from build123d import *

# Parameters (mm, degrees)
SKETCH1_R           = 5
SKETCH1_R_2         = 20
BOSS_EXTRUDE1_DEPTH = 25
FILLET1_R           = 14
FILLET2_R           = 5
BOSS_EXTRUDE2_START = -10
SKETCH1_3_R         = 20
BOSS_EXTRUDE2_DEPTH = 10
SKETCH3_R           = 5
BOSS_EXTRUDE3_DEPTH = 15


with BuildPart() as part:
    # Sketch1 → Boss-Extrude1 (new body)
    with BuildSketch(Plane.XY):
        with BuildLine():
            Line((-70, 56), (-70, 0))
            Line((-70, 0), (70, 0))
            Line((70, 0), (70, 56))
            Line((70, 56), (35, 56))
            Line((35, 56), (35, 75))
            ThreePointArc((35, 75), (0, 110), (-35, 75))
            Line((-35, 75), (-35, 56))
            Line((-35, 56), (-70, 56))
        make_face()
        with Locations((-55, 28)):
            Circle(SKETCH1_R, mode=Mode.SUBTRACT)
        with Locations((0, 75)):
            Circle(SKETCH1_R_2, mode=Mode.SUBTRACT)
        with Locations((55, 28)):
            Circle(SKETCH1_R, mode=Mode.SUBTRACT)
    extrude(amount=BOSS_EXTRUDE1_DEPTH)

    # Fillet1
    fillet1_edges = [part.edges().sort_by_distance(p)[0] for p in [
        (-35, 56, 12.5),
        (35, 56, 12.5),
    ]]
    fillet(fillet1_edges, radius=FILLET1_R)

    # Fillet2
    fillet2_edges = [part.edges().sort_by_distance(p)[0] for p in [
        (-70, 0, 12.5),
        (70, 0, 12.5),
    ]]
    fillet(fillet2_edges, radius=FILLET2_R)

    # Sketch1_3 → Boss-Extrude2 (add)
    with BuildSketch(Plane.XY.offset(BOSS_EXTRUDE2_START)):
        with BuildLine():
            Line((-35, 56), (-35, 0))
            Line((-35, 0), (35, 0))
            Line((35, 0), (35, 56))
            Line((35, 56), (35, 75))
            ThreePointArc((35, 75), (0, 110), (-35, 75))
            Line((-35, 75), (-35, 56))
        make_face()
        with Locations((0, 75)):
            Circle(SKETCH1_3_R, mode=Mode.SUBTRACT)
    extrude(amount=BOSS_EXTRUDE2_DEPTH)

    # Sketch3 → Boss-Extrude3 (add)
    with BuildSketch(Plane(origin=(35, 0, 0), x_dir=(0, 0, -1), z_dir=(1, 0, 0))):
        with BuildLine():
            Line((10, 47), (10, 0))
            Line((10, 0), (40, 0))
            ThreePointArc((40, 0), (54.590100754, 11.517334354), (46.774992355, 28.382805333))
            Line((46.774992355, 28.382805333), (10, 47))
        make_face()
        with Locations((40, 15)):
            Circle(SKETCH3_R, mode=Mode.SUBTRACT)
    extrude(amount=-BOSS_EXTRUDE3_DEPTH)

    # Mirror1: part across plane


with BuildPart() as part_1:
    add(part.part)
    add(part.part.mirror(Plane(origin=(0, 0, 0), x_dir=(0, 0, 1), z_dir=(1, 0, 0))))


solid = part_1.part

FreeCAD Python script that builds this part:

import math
import FreeCAD as App
import Part
import Sketcher
from FreeCAD import Vector
Q = App.Units.Quantity


def edges_at(feature, points):
    """Names of the edges that pass closest to the given points."""
    edges = feature.Shape.Edges
    near = lambda p: min(range(len(edges)), key=lambda i: edges[i].distToShape(Part.Vertex(*p))[0])
    return sorted({f"Edge{near(p) + 1}" for p in points})

doc = App.newDocument("Part")
body = doc.addObject("PartDesign::Body", "Body")

sketch1 = doc.addObject("Sketcher::SketchObject", "Sketch")
body.addObject(sketch1)
sketch1.AttachmentSupport = (doc.XY_Plane, [""])
sketch1.MapMode = "FlatFace"
sketch1.addGeometry([
    Part.LineSegment(Vector(-70, 56, 0), Vector(-70, 0, 0)),
    Part.LineSegment(Vector(-70, 0, 0), Vector(70, 0, 0)),
    Part.LineSegment(Vector(70, 0, 0), Vector(70, 56, 0)),
    Part.LineSegment(Vector(70, 56, 0), Vector(35, 56, 0)),
    Part.LineSegment(Vector(35, 56, 0), Vector(35, 75, 0)),
    Part.ArcOfCircle(Part.Circle(Vector(0, 75, 0), Vector(0, 0, 1), 35), math.radians(0), math.radians(180)),
    Part.LineSegment(Vector(-35, 75, 0), Vector(-35, 56, 0)),
    Part.LineSegment(Vector(-35, 56, 0), Vector(-70, 56, 0)),
    Part.Circle(Vector(-55, 28, 0), Vector(0, 0, 1), 5),
    Part.Circle(Vector(55, 28, 0), Vector(0, 0, 1), 5),
    Part.Circle(Vector(0, 75, 0), Vector(0, 0, 1), 20),
], False)
sketch1.addConstraint([
    Sketcher.Constraint("Coincident", 0, 2, 1, 1),
    Sketcher.Constraint("Coincident", 1, 2, 2, 1),
    Sketcher.Constraint("Coincident", 2, 2, 3, 1),
    Sketcher.Constraint("Coincident", 3, 2, 4, 1),
    Sketcher.Constraint("Tangent", 4, 2, 5, 1),
    Sketcher.Constraint("Tangent", 5, 2, 6, 1),
    Sketcher.Constraint("Coincident", 6, 2, 7, 1),
    Sketcher.Constraint("Coincident", 7, 2, 0, 1),
    Sketcher.Constraint("Vertical", 0),
    Sketcher.Constraint("Horizontal", 1),
    Sketcher.Constraint("Vertical", 2),
    Sketcher.Constraint("Horizontal", 3),
    Sketcher.Constraint("Vertical", 4),
    Sketcher.Constraint("Vertical", 6),
    Sketcher.Constraint("Horizontal", 7),
    Sketcher.Constraint("Coincident", 10, 3, 5, 3),
    Sketcher.Constraint("Equal", 8, 9),
    Sketcher.Constraint("Symmetric", 0, 2, 1, 2, -1, 1),
    Sketcher.Constraint("Symmetric", 8, 3, 9, 3, -2),
    Sketcher.Constraint("Symmetric", 3, 2, 6, 2, -2),
    Sketcher.Constraint("Diameter", 8, Q("10 mm")),
    Sketcher.Constraint("Diameter", 10, Q("40 mm")),
    Sketcher.Constraint("Radius", 5, Q("35 mm")),
    Sketcher.Constraint("DistanceX", 1, 1, 1, 2, Q("140 mm")),
    Sketcher.Constraint("DistanceY", 0, 2, 0, 1, Q("56 mm")),
    Sketcher.Constraint("DistanceY", 4, 1, 4, 2, Q("19 mm")),
    Sketcher.Constraint("DistanceX", 8, 3, -1, 1, Q("55 mm")),
    Sketcher.Constraint("DistanceY", -1, 1, 8, 3, Q("28 mm")),
])
pad1 = doc.addObject("PartDesign::Pad", "Pad")
body.addObject(pad1)
pad1.Profile = sketch1
pad1.Length = 25
doc.recompute()

fillet = doc.addObject("PartDesign::Fillet", "Fillet")
body.addObject(fillet)
fillet.Base = (pad1, edges_at(pad1, [(-35, 56, 12.5), (35, 56, 12.5)]))
fillet.Radius = 14
doc.recompute()

fillet2 = doc.addObject("PartDesign::Fillet", "Fillet001")
body.addObject(fillet2)
fillet2.Base = (fillet, edges_at(fillet, [(-70, 0, 12.5), (70, 0, 12.5)]))
fillet2.Radius = 5

sketch2 = doc.addObject("Sketcher::SketchObject", "Sketch001")
body.addObject(sketch2)
sketch2.AttachmentSupport = (doc.XY_Plane, [""])
sketch2.MapMode = "FlatFace"
sketch2.AttachmentOffset = App.Placement(Vector(0, 0, -10), App.Rotation())
sketch2.addGeometry([
    Part.LineSegment(Vector(-35, 0, 0), Vector(35, 0, 0)),
    Part.LineSegment(Vector(35, 0, 0), Vector(35, 75, 0)),
    Part.ArcOfCircle(Part.Circle(Vector(0, 75, 0), Vector(0, 0, 1), 35), math.radians(0), math.radians(180)),
    Part.LineSegment(Vector(-35, 75, 0), Vector(-35, 0, 0)),
    Part.Circle(Vector(0, 75, 0), Vector(0, 0, 1), 20),
], False)
sketch2.addConstraint([
    Sketcher.Constraint("Coincident", 0, 2, 1, 1),
    Sketcher.Constraint("Tangent", 1, 2, 2, 1),
    Sketcher.Constraint("Tangent", 2, 2, 3, 1),
    Sketcher.Constraint("Coincident", 3, 2, 0, 1),
    Sketcher.Constraint("Horizontal", 0),
    Sketcher.Constraint("Vertical", 1),
    Sketcher.Constraint("Vertical", 3),
    Sketcher.Constraint("Coincident", 4, 3, 2, 3),
    Sketcher.Constraint("Symmetric", 0, 2, 3, 2, -1, 1),
    Sketcher.Constraint("Diameter", 4, Q("40 mm")),
    Sketcher.Constraint("Radius", 2, Q("35 mm")),
    Sketcher.Constraint("DistanceY", 1, 1, 1, 2, Q("75 mm")),
])
pad2 = doc.addObject("PartDesign::Pad", "Pad001")
body.addObject(pad2)
pad2.Profile = sketch2
pad2.Length = 10

sketch3 = doc.addObject("Sketcher::SketchObject", "Sketch002")
body.addObject(sketch3)
sketch3.AttachmentSupport = (doc.YZ_Plane, [""])
sketch3.MapMode = "FlatFace"
sketch3.AttachmentOffset = App.Placement(Vector(0, 0, 35), App.Rotation())
sketch3.addGeometry([
    Part.LineSegment(Vector(47, -10, 0), Vector(0, -10, 0)),
    Part.LineSegment(Vector(0, -10, 0), Vector(0, -40, 0)),
    Part.ArcOfCircle(Part.Circle(Vector(15, -40, 0), Vector(0, 0, 1), 15), math.radians(180), math.radians(333)),
    Part.LineSegment(Vector(28, -47, 0), Vector(47, -10, 0)),
    Part.Circle(Vector(15, -40, 0), Vector(0, 0, 1), 5),
], False)
sketch3.addConstraint([
    Sketcher.Constraint("Coincident", 0, 2, 1, 1),
    Sketcher.Constraint("Tangent", 1, 2, 2, 1),
    Sketcher.Constraint("Tangent", 2, 2, 3, 1),
    Sketcher.Constraint("Coincident", 3, 2, 0, 1),
    Sketcher.Constraint("Horizontal", 0),
    Sketcher.Constraint("Vertical", 1),
    Sketcher.Constraint("Coincident", 4, 3, 2, 3),
    Sketcher.Constraint("PointOnObject", 0, 2, -2),
    Sketcher.Constraint("Diameter", 4, Q("10 mm")),
    Sketcher.Constraint("Radius", 2, Q("15 mm")),
    Sketcher.Constraint("DistanceX", 0, 2, 0, 1, Q("47 mm")),
    Sketcher.Constraint("DistanceY", 1, 2, 1, 1, Q("30 mm")),
    Sketcher.Constraint("DistanceY", 2, 3, -1, 1, Q("40 mm")),
])
pad3 = doc.addObject("PartDesign::Pad", "Pad002")
body.addObject(pad3)
pad3.Profile = sketch3
pad3.Length = 15
pad3.Reversed = True
body2 = doc.addObject("PartDesign::Body", "Body001")
doc.recompute()

body2.BaseFeature = body
doc.recompute()

mirroring = doc.addObject("Part::Mirroring", "Mirroring")
mirroring.Source = body
mirroring.Base = Vector(0, 0, 0)
mirroring.Normal = Vector(1, 0, 0)
body3 = doc.addObject("PartDesign::Body", "Body002")
body3.BaseFeature = mirroring
boolean = doc.addObject("PartDesign::Boolean", "Boolean")
body2.addObject(boolean)
boolean.Type = "Fuse"
boolean.addObjects([body3])
doc.recompute()
mirroring.Visibility = False

doc.recompute()
